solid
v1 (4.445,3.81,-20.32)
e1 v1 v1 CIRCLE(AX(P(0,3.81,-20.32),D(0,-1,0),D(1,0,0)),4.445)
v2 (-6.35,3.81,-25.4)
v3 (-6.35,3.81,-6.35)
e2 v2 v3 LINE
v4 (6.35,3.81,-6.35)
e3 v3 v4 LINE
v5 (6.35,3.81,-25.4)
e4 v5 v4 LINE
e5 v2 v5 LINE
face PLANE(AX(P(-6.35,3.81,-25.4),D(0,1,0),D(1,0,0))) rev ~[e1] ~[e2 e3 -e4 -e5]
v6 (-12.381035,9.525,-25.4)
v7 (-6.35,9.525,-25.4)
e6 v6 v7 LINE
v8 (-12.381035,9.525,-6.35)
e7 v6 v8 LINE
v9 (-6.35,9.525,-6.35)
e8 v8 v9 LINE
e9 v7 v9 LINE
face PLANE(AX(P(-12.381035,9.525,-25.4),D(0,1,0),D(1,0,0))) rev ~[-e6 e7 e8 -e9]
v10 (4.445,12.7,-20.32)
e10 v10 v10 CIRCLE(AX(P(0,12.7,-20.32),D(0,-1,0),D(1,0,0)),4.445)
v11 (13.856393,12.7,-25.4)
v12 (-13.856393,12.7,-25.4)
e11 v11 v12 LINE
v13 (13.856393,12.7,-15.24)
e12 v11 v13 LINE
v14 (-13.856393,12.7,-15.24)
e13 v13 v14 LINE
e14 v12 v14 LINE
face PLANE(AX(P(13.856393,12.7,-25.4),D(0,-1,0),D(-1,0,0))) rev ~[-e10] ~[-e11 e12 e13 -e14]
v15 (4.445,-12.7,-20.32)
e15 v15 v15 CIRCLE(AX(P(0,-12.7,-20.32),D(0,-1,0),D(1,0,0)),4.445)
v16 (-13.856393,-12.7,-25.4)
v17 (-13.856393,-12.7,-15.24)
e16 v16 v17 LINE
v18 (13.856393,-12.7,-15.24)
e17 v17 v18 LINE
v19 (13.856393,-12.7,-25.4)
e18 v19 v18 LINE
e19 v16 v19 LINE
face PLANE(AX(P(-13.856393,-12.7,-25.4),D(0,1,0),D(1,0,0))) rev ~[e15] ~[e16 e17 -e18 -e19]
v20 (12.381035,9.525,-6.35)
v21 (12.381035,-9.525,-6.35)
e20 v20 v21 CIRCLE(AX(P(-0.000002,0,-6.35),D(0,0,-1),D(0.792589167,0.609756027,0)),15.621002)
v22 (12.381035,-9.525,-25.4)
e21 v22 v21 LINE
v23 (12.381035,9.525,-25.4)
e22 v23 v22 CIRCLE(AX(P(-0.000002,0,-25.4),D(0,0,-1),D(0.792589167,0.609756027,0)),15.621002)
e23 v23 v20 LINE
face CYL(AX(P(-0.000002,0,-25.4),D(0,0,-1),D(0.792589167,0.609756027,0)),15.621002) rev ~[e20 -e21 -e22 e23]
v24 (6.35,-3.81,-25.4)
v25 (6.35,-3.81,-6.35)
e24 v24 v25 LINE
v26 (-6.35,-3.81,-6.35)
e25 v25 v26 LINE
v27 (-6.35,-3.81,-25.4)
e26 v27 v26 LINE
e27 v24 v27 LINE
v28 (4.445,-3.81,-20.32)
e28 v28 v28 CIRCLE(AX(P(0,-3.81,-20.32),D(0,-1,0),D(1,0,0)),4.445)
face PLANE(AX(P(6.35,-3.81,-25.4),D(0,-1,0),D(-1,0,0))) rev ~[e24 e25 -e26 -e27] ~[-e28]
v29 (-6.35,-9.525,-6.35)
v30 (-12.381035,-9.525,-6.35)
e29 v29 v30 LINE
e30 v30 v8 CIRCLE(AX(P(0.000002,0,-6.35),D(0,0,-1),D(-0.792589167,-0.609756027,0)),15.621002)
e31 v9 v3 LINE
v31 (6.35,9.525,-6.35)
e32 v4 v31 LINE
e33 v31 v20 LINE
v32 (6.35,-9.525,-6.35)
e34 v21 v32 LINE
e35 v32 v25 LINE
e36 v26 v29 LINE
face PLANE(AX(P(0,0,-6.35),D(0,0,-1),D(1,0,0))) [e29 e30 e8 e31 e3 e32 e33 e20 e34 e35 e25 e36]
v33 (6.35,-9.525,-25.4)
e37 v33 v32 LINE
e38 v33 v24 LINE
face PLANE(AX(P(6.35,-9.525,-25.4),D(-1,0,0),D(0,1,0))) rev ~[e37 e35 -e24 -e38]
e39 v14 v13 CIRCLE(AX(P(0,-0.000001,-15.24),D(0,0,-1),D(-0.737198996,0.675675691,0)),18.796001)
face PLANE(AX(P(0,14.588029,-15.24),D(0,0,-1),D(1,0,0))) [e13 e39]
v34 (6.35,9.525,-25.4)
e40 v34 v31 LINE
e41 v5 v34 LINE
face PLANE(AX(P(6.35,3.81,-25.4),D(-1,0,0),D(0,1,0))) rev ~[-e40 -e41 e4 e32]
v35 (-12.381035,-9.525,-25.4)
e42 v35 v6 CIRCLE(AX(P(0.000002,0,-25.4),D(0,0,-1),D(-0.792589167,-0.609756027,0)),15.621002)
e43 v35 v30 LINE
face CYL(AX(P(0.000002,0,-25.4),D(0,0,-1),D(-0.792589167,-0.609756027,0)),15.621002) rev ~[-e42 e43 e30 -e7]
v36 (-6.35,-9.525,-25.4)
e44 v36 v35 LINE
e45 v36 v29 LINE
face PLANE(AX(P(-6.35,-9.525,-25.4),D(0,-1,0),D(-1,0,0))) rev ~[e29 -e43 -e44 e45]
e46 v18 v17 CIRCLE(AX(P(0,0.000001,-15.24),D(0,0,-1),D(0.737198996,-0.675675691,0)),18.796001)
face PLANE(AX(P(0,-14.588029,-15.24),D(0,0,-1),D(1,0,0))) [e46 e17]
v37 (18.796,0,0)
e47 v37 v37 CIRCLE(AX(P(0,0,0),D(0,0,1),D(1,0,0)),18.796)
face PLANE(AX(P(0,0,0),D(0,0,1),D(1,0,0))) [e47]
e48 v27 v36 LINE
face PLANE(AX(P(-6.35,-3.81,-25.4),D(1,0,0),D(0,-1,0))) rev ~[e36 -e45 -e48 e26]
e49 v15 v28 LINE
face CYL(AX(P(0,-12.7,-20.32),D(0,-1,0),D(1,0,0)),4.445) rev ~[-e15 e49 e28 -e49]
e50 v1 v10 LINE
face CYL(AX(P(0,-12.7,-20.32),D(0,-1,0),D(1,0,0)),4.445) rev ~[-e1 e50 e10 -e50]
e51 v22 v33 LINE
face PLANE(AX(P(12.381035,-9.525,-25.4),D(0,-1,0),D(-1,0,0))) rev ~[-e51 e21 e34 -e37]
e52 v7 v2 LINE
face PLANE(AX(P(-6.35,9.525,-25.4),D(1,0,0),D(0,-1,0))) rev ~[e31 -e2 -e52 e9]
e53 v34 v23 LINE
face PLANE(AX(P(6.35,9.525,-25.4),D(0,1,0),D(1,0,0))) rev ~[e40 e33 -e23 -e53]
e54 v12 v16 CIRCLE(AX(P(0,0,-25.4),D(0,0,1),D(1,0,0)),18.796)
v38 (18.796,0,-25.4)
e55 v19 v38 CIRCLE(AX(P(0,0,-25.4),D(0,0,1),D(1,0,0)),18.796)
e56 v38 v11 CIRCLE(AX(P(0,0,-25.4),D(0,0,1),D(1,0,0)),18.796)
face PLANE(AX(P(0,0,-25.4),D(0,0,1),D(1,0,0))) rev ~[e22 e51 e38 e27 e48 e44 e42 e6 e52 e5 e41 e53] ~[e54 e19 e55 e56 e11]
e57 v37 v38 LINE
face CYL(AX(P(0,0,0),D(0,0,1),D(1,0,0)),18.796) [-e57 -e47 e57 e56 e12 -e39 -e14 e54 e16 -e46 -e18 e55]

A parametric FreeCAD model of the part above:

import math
import FreeCAD as App
import Part
import Sketcher

V = App.Vector
Q = App.Units.Quantity

doc = App.newDocument("Part")
body = doc.addObject("PartDesign::Body", "Body")

# Sketch on XY plane
sketch1 = doc.addObject("Sketcher::SketchObject", "Sketch")
body.addObject(sketch1)
sketch1.AttachmentSupport = (doc.XY_Plane, [""])
sketch1.MapMode = "FlatFace"
sketch1.addGeometry(Part.Circle(V(0, 0, 0), V(0, 0, 1), 18.796), False)
sketch1.addConstraint(Sketcher.Constraint("Coincident", 0, 3, -1, 1))
sketch1.addConstraint(Sketcher.Constraint("Diameter", 0, Q("1.48 in")))
pad1 = doc.addObject("PartDesign::Pad", "Pad")
body.addObject(pad1)
pad1.Profile = sketch1
pad1.Length = Q("1 in")
pad1.Reversed = True

# Sketch on XY plane
sketch2 = doc.addObject("Sketcher::SketchObject", "Sketch001")
body.addObject(sketch2)
sketch2.AttachmentSupport = (doc.XY_Plane, [""])
sketch2.MapMode = "FlatFace"
sketch2.AttachmentOffset = App.Placement(V(0, 0, -1 * 25.4), App.Rotation())
sketch2.addGeometry(Part.LineSegment(V(13.856393, 12.7, 0), V(-13.856393, 12.7, 0)), False)
sketch2.addGeometry(Part.ArcOfCircle(Part.Circle(V(0, -0.000001, 0), V(0, 0, 1), 18.796001), math.radians(42.506644), math.radians(137.493356)), False)
sketch2.addGeometry(Part.LineSegment(V(-13.856393, -12.7, 0), V(13.856393, -12.7, 0)), False)
sketch2.addGeometry(Part.ArcOfCircle(Part.Circle(V(0, 0.000001, 0), V(0, 0, 1), 18.796001), math.radians(-137.493356), math.radians(-42.506644)), False)
sketch2.addConstraint(Sketcher.Constraint("Coincident", 0, 1, 1, 1))
sketch2.addConstraint(Sketcher.Constraint("Coincident", 1, 2, 0, 2))
sketch2.addConstraint(Sketcher.Constraint("Coincident", 2, 1, 3, 1))
sketch2.addConstraint(Sketcher.Constraint("Coincident", 3, 2, 2, 2))
sketch2.addConstraint(Sketcher.Constraint("Horizontal", 0))
sketch2.addConstraint(Sketcher.Constraint("Horizontal", 2))
sketch2.addConstraint(Sketcher.Constraint("Coincident", 1, 3, -1, 1))
sketch2.addConstraint(Sketcher.Constraint("Coincident", 3, 3, -1, 1))
sketch2.addConstraint(Sketcher.Constraint("Equal", 1, 3))
sketch2.addConstraint(Sketcher.Constraint("Vertical", 1, 2, 2, 1))
sketch2.addConstraint(Sketcher.Constraint("Radius", 1, Q("0.74 in")))
sketch2.addConstraint(Sketcher.Constraint("DistanceY", 2, 1, 1, 2, Q("1 in")))
pocket1 = doc.addObject("PartDesign::Pocket", "Pocket")
body.addObject(pocket1)
pocket1.Profile = sketch2
pocket1.Length = Q("0.4 in")
pocket1.Reversed = True

# Sketch on XY plane
sketch3 = doc.addObject("Sketcher::SketchObject", "Sketch002")
body.addObject(sketch3)
sketch3.AttachmentSupport = (doc.XY_Plane, [""])
sketch3.MapMode = "FlatFace"
sketch3.AttachmentOffset = App.Placement(V(0, 0, -1 * 25.4), App.Rotation())
sketch3.addGeometry(Part.LineSegment(V(-6.35, -9.525, 0), V(-12.381035, -9.525, 0)), False)
sketch3.addGeometry(Part.ArcOfCircle(Part.Circle(V(0.000002, 0, 0), V(0, 0, 1), 15.621002), math.radians(142.428136), math.radians(217.571864)), False)
sketch3.addGeometry(Part.LineSegment(V(-12.381035, 9.525, 0), V(-6.35, 9.525, 0)), False)
sketch3.addGeometry(Part.LineSegment(V(-6.35, 9.525, 0), V(-6.35, 3.81, 0)), False)
sketch3.addGeometry(Part.LineSegment(V(-6.35, 3.81, 0), V(6.35, 3.81, 0)), False)
sketch3.addGeometry(Part.LineSegment(V(6.35, 3.81, 0), V(6.35, 9.525, 0)), False)
sketch3.addGeometry(Part.LineSegment(V(6.35, 9.525, 0), V(12.381035, 9.525, 0)), False)
sketch3.addGeometry(Part.ArcOfCircle(Part.Circle(V(-0.000002, 0, 0), V(0, 0, 1), 15.621002), math.radians(-37.571864), math.radians(37.571864)), False)
sketch3.addGeometry(Part.LineSegment(V(12.381035, -9.525, 0), V(6.35, -9.525, 0)), False)
sketch3.addGeometry(Part.LineSegment(V(6.35, -9.525, 0), V(6.35, -3.81, 0)), False)
sketch3.addGeometry(Part.LineSegment(V(6.35, -3.81, 0), V(-6.35, -3.81, 0)), False)
sketch3.addGeometry(Part.LineSegment(V(-6.35, -3.81, 0), V(-6.35, -9.525, 0)), False)
sketch3.addConstraint(Sketcher.Constraint("Coincident", 0, 2, 1, 2))
sketch3.addConstraint(Sketcher.Constraint("Coincident", 1, 1, 2, 1))
sketch3.addConstraint(Sketcher.Constraint("Coincident", 2, 2, 3, 1))
sketch3.addConstraint(Sketcher.Constraint("Coincident", 3, 2, 4, 1))
sketch3.addConstraint(Sketcher.Constraint("Coincident", 4, 2, 5, 1))
sketch3.addConstraint(Sketcher.Constraint("Coincident", 5, 2, 6, 1))
sketch3.addConstraint(Sketcher.Constraint("Coincident", 6, 2, 7, 2))
sketch3.addConstraint(Sketcher.Constraint("Coincident", 7, 1, 8, 1))
sketch3.addConstraint(Sketcher.Constraint("Coincident", 8, 2, 9, 1))
sketch3.addConstraint(Sketcher.Constraint("Coincident", 9, 2, 10, 1))
sketch3.addConstraint(Sketcher.Constraint("Coincident", 10, 2, 11, 1))
sketch3.addConstraint(Sketcher.Constraint("Coincident", 11, 2, 0, 1))
sketch3.addConstraint(Sketcher.Constraint("Horizontal", 0))
sketch3.addConstraint(Sketcher.Constraint("Horizontal", 2))
sketch3.addConstraint(Sketcher.Constraint("Vertical", 3))
sketch3.addConstraint(Sketcher.Constraint("Horizontal", 4))
sketch3.addConstraint(Sketcher.Constraint("Vertical", 5))
sketch3.addConstraint(Sketcher.Constraint("Horizontal", 6))
sketch3.addConstraint(Sketcher.Constraint("Horizontal", 8))
sketch3.addConstraint(Sketcher.Constraint("Vertical", 9))
sketch3.addConstraint(Sketcher.Constraint("Horizontal", 10))
sketch3.addConstraint(Sketcher.Constraint("Vertical", 11))
sketch3.addConstraint(Sketcher.Constraint("Coincident", 1, 3, -1, 1))
sketch3.addConstraint(Sketcher.Constraint("Coincident", 7, 3, -1, 1))
sketch3.addConstraint(Sketcher.Constraint("Equal", 1, 7))
sketch3.addConstraint(Sketcher.Constraint("Symmetric", 2, 2, 8, 2, -1, 1))
sketch3.addConstraint(Sketcher.Constraint("Symmetric", 4, 2, 10, 2, -1, 1))
sketch3.addConstraint(Sketcher.Constraint("Symmetric", 2, 2, 5, 2, -2))
sketch3.addConstraint(Sketcher.Constraint("Horizontal", 0, 2, 7, 1))
sketch3.addConstraint(Sketcher.Constraint("DistanceX", 4, 1, 4, 2, Q("0.5 in")))
sketch3.addConstraint(Sketcher.Constraint("Radius", 1, Q("0.6150001 in")))
sketch3.addConstraint(Sketcher.Constraint("DistanceY", 9, 2, 4, 2, Q("0.3 in")))
sketch3.addConstraint(Sketcher.Constraint("DistanceY", 3, 2, 3, 1, Q("0.225 in")))
pocket2 = doc.addObject("PartDesign::Pocket", "Pocket001")
body.addObject(pocket2)
pocket2.Profile = sketch3
pocket2.Length = Q("0.75 in")
pocket2.Reversed = True

# Sketch on XZ plane
sketch4 = doc.addObject("Sketcher::SketchObject", "Sketch003")
body.addObject(sketch4)
sketch4.AttachmentSupport = (doc.XZ_Plane, [""])
sketch4.MapMode = "FlatFace"
sketch4.AttachmentOffset = App.Placement(V(0, 0, 0.5 * 25.4), App.Rotation())
sketch4.addGeometry(Part.Circle(V(0, -20.32, 0), V(0, 0, 1), 4.445), False)
sketch4.addConstraint(Sketcher.Constraint("PointOnObject", 0, 3, -2))
sketch4.addConstraint(Sketcher.Constraint("Diameter", 0, Q("0.35 in")))
sketch4.addConstraint(Sketcher.Constraint("DistanceY", 0, 3, -1, 1, Q("0.8 in")))
pocket3 = doc.addObject("PartDesign::Pocket", "Pocket002")
body.addObject(pocket3)
pocket3.Profile = sketch4
pocket3.Type = "ThroughAll"

doc.recompute()
